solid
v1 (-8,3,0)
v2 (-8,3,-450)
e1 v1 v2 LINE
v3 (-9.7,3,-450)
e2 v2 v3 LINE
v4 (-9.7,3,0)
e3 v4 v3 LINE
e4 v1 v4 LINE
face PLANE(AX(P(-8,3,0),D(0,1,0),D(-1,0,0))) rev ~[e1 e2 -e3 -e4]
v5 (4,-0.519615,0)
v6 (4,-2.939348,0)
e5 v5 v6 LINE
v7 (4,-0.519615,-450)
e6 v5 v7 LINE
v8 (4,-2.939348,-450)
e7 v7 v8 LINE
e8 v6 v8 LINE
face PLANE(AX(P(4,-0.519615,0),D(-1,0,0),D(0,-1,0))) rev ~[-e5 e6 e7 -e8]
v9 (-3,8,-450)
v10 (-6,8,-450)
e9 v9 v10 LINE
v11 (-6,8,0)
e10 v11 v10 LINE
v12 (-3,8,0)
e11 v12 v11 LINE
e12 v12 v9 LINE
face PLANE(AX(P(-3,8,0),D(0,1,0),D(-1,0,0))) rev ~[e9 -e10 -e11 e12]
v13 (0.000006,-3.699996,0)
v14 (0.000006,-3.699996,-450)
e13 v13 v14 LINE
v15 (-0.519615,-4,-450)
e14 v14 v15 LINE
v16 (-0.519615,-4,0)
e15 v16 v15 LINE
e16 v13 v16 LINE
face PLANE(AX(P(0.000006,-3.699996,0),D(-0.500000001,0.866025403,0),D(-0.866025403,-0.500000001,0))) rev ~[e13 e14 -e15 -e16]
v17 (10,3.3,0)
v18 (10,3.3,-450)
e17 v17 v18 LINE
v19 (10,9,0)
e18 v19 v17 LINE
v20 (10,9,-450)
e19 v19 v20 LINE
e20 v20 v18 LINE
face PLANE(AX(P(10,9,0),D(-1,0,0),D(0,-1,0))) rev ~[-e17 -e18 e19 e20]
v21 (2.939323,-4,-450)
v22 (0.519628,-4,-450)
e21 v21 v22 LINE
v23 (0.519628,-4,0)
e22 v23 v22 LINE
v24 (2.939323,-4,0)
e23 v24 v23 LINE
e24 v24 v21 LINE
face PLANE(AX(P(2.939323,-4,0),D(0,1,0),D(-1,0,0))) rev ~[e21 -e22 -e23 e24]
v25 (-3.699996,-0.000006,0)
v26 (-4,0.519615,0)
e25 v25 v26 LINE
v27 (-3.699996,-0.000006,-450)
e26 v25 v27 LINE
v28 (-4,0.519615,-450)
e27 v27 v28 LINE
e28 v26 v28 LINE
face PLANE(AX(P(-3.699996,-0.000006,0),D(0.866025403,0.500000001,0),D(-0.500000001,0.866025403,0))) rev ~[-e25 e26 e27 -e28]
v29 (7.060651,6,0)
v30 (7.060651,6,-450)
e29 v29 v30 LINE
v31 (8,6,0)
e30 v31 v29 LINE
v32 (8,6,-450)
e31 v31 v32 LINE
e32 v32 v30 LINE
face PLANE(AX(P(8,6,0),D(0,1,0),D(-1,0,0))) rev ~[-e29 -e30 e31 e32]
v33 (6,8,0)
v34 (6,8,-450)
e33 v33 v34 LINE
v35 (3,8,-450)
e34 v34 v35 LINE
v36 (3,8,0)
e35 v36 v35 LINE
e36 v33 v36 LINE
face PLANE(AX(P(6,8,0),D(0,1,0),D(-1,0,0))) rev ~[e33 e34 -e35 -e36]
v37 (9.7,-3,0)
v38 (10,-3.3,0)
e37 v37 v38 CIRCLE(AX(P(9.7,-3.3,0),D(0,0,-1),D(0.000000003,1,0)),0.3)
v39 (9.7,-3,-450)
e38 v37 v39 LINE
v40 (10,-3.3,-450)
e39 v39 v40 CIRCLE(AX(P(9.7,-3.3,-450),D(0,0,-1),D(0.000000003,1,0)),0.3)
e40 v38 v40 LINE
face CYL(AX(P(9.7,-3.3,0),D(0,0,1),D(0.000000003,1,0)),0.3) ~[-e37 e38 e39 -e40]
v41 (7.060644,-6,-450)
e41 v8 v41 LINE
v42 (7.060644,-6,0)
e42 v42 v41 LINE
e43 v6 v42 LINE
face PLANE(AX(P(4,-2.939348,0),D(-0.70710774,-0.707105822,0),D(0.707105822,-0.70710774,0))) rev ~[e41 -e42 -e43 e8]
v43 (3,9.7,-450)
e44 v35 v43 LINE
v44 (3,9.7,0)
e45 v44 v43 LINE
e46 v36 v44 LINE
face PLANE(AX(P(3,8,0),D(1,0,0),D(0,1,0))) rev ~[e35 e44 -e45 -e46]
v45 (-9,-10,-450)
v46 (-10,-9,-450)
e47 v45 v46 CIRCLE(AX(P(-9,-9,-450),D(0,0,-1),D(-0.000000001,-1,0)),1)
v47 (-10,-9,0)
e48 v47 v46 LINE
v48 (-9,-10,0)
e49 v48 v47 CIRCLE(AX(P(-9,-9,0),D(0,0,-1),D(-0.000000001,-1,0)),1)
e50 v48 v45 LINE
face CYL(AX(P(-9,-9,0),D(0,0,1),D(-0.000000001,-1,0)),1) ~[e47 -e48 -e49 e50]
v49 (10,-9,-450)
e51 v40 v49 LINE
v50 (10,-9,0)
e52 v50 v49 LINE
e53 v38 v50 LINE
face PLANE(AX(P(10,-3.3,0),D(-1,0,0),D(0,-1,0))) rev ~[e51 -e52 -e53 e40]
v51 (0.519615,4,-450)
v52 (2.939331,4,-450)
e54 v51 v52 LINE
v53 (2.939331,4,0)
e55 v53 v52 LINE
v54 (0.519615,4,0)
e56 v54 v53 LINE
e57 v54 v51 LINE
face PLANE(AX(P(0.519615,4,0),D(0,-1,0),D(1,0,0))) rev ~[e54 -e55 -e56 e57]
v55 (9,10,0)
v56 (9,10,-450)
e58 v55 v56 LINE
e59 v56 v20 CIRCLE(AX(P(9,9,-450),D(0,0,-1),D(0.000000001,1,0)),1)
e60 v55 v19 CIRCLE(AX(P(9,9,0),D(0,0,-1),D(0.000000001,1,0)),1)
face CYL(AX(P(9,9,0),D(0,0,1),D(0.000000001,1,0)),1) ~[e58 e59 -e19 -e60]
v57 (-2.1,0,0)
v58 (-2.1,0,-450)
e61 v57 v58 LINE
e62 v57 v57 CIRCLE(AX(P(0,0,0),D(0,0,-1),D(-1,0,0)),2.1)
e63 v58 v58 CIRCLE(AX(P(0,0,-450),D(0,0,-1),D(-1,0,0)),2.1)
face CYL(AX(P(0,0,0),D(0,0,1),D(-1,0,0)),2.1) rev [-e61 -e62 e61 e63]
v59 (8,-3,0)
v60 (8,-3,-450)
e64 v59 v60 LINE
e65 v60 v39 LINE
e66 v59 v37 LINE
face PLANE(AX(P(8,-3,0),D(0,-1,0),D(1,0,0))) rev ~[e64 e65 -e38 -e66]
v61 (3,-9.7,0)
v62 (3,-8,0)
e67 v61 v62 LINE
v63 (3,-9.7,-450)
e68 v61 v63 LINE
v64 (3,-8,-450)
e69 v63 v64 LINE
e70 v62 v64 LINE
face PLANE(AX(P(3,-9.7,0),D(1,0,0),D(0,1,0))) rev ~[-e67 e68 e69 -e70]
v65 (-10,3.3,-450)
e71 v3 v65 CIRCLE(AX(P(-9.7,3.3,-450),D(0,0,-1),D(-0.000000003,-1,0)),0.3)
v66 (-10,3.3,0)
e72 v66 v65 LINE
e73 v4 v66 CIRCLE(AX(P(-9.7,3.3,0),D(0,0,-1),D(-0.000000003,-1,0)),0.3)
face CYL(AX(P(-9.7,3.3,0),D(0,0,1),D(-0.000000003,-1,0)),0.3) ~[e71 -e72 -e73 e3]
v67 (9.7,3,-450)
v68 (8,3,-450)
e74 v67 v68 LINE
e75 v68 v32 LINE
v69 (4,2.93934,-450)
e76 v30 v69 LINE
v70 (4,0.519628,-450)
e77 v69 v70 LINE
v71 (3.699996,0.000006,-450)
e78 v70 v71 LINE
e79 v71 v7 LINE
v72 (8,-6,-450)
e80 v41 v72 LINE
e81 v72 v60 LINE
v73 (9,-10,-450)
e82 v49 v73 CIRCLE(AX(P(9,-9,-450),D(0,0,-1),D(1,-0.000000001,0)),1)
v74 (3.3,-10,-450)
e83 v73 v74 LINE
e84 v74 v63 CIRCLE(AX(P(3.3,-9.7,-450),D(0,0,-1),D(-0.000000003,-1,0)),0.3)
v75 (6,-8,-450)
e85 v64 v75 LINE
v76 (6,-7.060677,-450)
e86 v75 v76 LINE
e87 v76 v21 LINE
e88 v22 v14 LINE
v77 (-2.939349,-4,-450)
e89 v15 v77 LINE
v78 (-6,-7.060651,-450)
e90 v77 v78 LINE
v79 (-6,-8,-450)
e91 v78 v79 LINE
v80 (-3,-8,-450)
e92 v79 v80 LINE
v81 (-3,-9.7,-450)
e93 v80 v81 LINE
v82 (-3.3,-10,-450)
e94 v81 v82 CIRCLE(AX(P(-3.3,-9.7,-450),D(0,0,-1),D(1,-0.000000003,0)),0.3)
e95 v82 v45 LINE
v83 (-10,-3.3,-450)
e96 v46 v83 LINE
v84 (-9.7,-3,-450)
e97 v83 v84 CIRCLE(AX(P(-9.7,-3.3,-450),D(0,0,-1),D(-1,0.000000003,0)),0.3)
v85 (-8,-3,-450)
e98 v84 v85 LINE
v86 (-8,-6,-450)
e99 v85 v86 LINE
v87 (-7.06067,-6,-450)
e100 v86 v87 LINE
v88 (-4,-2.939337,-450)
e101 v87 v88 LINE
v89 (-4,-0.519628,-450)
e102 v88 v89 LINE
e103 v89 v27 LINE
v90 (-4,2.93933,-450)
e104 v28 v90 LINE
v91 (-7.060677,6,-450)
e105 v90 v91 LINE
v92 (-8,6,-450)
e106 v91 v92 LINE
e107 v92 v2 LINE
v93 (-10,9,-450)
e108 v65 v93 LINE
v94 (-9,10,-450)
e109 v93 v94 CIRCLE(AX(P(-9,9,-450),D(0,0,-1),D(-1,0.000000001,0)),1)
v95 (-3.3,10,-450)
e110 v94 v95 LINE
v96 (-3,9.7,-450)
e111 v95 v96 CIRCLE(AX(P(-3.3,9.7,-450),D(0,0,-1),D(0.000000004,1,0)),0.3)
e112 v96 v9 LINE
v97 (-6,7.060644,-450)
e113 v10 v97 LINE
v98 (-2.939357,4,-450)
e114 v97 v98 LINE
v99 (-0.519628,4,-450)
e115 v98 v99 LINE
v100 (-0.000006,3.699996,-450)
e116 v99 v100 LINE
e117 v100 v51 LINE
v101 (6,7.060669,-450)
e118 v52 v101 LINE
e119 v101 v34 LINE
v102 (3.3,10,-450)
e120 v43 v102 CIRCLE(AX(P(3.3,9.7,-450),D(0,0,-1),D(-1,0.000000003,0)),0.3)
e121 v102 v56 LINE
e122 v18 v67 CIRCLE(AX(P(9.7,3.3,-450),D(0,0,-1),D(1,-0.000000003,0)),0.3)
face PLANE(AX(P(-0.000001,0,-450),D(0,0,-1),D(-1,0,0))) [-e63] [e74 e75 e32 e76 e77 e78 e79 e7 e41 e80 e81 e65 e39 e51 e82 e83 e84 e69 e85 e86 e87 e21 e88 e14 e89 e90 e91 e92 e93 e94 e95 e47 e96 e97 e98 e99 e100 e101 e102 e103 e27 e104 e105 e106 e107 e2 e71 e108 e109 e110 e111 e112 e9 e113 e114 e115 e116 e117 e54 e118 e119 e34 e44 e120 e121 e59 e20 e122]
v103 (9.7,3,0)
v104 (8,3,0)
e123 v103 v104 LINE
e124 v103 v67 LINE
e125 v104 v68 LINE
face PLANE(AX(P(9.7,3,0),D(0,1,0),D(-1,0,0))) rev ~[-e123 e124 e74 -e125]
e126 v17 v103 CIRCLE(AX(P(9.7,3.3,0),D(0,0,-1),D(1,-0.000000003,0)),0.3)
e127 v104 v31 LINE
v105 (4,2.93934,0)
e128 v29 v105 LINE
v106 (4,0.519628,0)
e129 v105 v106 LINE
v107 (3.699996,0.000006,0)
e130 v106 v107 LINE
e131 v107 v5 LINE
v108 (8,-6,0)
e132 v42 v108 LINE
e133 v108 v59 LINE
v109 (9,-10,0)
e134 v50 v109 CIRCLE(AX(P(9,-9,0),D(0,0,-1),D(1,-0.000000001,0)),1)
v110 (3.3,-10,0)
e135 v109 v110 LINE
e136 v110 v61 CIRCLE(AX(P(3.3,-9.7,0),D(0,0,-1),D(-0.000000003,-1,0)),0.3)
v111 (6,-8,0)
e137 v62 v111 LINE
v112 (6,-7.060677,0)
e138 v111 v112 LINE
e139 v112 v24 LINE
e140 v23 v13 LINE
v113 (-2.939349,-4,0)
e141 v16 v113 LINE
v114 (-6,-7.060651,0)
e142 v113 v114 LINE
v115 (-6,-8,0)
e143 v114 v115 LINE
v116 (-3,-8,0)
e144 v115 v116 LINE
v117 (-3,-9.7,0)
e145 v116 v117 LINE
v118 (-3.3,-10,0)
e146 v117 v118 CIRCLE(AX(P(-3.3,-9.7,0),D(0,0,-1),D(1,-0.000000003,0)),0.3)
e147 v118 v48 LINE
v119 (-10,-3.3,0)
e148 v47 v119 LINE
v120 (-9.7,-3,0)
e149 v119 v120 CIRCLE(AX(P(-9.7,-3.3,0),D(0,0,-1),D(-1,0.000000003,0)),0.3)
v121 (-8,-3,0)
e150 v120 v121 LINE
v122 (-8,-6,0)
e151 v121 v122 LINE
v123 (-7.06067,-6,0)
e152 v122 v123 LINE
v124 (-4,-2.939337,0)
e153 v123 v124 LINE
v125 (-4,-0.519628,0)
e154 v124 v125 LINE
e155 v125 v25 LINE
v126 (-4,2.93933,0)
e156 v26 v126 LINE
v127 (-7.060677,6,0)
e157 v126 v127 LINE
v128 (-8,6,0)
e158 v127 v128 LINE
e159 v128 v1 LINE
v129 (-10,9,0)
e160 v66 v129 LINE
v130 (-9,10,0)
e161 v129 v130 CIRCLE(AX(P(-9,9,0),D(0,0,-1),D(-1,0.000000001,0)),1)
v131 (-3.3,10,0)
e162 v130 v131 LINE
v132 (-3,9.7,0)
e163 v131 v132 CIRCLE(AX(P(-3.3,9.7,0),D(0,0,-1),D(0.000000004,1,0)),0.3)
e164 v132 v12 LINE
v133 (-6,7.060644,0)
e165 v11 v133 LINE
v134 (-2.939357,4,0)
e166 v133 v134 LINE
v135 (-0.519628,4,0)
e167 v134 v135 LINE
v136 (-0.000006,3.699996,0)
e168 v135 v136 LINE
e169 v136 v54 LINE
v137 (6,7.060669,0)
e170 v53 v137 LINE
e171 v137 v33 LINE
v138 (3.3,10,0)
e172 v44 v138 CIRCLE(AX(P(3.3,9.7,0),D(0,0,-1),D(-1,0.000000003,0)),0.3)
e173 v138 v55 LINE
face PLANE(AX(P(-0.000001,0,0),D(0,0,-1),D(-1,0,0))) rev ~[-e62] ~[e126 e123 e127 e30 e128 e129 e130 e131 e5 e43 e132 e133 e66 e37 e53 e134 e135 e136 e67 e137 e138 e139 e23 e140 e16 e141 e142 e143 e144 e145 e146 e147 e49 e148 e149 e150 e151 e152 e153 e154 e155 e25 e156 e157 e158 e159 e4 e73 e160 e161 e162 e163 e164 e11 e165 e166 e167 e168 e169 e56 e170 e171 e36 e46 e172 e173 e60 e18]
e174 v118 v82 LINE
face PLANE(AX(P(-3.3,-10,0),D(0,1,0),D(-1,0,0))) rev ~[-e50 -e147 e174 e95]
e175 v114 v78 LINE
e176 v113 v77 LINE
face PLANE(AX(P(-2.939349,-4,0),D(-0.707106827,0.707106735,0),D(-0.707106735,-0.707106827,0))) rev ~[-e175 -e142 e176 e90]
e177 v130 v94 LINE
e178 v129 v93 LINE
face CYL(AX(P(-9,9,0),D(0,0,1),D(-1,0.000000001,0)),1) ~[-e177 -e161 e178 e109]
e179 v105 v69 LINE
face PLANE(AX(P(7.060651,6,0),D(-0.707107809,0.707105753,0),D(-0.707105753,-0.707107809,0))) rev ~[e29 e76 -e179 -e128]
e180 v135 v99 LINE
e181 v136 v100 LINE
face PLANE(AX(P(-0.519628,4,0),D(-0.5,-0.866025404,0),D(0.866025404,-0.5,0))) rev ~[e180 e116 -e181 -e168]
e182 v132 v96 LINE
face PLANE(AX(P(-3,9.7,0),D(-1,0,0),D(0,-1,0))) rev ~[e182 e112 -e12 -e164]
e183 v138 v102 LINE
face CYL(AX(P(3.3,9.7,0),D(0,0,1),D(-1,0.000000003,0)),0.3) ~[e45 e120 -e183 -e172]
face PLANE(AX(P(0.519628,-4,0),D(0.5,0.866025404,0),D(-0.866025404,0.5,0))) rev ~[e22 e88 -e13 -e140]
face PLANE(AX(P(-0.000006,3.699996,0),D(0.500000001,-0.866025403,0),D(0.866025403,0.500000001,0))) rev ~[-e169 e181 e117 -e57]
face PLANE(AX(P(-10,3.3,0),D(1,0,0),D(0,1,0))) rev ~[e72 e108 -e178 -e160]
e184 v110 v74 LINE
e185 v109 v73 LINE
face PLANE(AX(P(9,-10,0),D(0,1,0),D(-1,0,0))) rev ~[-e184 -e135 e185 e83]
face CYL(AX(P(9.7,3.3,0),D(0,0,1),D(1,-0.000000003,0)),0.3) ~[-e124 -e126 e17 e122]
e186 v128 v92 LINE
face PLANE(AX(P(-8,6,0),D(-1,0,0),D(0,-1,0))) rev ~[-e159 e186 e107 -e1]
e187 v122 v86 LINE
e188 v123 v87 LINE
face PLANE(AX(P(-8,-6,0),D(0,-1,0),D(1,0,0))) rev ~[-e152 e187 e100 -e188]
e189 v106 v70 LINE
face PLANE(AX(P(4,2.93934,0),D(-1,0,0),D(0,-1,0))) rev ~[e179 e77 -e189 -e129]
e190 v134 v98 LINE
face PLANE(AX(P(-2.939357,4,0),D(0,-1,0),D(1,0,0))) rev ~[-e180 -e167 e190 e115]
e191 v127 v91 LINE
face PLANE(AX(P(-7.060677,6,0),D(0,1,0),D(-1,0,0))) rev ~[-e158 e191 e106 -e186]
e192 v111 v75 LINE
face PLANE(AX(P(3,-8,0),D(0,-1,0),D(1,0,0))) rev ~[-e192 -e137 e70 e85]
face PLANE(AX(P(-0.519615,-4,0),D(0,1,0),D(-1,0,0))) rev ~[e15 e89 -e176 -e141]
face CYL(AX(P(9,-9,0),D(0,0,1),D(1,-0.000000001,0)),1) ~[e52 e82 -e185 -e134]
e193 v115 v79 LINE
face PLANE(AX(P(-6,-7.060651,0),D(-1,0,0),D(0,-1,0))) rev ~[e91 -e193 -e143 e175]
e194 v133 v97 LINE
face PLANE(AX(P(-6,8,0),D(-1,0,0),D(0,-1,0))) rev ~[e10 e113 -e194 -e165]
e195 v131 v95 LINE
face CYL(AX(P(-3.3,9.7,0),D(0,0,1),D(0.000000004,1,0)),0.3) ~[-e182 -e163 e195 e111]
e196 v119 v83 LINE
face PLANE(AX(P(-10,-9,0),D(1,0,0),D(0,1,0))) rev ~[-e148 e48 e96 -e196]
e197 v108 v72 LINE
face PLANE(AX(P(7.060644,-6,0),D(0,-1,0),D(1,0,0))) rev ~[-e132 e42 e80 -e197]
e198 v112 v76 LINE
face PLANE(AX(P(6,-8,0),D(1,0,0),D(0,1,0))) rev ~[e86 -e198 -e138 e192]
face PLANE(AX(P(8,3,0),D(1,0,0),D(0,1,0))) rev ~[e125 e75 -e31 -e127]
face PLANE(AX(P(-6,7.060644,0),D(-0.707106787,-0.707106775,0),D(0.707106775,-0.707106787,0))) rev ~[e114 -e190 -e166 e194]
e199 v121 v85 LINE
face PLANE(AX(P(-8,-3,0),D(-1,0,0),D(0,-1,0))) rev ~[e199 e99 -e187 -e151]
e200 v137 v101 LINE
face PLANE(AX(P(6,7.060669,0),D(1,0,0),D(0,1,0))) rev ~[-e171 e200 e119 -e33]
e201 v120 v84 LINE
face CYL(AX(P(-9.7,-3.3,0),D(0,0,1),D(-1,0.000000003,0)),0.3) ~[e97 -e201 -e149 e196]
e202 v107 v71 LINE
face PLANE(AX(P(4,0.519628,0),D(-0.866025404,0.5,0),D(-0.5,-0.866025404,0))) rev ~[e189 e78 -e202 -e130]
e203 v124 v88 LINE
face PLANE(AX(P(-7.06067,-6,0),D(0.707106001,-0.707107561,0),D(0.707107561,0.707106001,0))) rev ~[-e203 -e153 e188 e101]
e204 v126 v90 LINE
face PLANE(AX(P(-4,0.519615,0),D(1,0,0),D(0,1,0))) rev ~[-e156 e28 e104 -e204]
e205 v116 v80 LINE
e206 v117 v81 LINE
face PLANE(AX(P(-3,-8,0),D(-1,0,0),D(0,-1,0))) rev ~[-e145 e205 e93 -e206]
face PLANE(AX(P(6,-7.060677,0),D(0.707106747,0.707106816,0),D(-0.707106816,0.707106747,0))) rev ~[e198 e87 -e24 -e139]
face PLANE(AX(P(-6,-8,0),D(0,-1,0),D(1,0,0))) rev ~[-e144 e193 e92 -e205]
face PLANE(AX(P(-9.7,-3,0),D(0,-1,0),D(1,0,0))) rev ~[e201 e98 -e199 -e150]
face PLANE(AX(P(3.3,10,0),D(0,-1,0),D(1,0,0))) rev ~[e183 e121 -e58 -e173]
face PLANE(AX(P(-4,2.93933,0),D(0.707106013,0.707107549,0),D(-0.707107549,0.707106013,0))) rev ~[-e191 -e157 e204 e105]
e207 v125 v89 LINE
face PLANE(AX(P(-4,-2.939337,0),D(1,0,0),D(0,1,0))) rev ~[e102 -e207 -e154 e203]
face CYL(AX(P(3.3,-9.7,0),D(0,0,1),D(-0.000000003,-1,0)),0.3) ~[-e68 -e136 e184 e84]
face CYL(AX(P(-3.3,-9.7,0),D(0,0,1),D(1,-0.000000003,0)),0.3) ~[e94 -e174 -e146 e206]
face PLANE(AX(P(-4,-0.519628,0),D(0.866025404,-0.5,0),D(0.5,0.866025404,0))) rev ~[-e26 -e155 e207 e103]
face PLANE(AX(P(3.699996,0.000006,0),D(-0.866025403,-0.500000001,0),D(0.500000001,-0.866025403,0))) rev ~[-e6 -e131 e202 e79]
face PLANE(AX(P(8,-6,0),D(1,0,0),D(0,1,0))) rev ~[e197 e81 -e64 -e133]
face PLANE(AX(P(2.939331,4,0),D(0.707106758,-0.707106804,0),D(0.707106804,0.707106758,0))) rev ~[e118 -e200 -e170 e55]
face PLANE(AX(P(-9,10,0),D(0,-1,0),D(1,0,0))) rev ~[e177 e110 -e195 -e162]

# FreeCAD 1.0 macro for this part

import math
import FreeCAD as App
import Part
import Sketcher

doc = App.newDocument("Part")
body = doc.addObject("PartDesign::Body", "Body")

sketch1 = doc.addObject("Sketcher::SketchObject", "Sketch")
body.addObject(sketch1)
sketch1.AttachmentSupport = (doc.XY_Plane, [""])
sketch1.MapMode = "FlatFace"
sketch1.addGeometry(Part.LineSegment(App.Vector(-10, 3.3, 0), App.Vector(-10, 9, 0)), False)
sketch1.addGeometry(Part.ArcOfCircle(Part.Circle(App.Vector(-9, 9, 0), App.Vector(0, 0, 1), 1), math.radians(90), math.radians(180)), False)
sketch1.addGeometry(Part.LineSegment(App.Vector(-9, 10, 0), App.Vector(-3.3, 10, 0)), False)
sketch1.addGeometry(Part.ArcOfCircle(Part.Circle(App.Vector(-3.3, 9.7, 0), App.Vector(0, 0, 1), 0.3), math.radians(0), math.radians(90)), False)
sketch1.addGeometry(Part.LineSegment(App.Vector(-3, 9.7, 0), App.Vector(-3, 8, 0)), False)
sketch1.addGeometry(Part.LineSegment(App.Vector(-3, 8, 0), App.Vector(-6, 8, 0)), False)
sketch1.addGeometry(Part.LineSegment(App.Vector(-6, 8, 0), App.Vector(-6, 7.060644, 0)), False)
sketch1.addGeometry(Part.LineSegment(App.Vector(-6, 7.060644, 0), App.Vector(-2.939357, 4, 0)), False)
sketch1.addGeometry(Part.LineSegment(App.Vector(-2.939357, 4, 0), App.Vector(-0.519628, 4, 0)), False)
sketch1.addGeometry(Part.LineSegment(App.Vector(-0.519628, 4, 0), App.Vector(-0.000006, 3.699996, 0)), False)
sketch1.addGeometry(Part.LineSegment(App.Vector(-0.000006, 3.699996, 0), App.Vector(0.519615, 4, 0)), False)
sketch1.addGeometry(Part.LineSegment(App.Vector(0.519615, 4, 0), App.Vector(2.939331, 4, 0)), False)
sketch1.addGeometry(Part.LineSegment(App.Vector(2.939331, 4, 0), App.Vector(6, 7.060669, 0)), False)
sketch1.addGeometry(Part.LineSegment(App.Vector(6, 7.060669, 0), App.Vector(6, 8, 0)), False)
sketch1.addGeometry(Part.LineSegment(App.Vector(6, 8, 0), App.Vector(3, 8, 0)), False)
sketch1.addGeometry(Part.LineSegment(App.Vector(3, 8, 0), App.Vector(3, 9.7, 0)), False)
sketch1.addGeometry(Part.ArcOfCircle(Part.Circle(App.Vector(3.3, 9.7, 0), App.Vector(0, 0, 1), 0.3), math.radians(90), math.radians(180)), False)
sketch1.addGeometry(Part.LineSegment(App.Vector(3.3, 10, 0), App.Vector(9, 10, 0)), False)
sketch1.addGeometry(Part.ArcOfCircle(Part.Circle(App.Vector(9, 9, 0), App.Vector(0, 0, 1), 1), math.radians(0), math.radians(90)), False)
sketch1.addGeometry(Part.LineSegment(App.Vector(10, 9, 0), App.Vector(10, 3.3, 0)), False)
sketch1.addGeometry(Part.ArcOfCircle(Part.Circle(App.Vector(9.7, 3.3, 0), App.Vector(0, 0, 1), 0.3), math.radians(-90), math.radians(0)), False)
sketch1.addGeometry(Part.LineSegment(App.Vector(9.7, 3, 0), App.Vector(8, 3, 0)), False)
sketch1.addGeometry(Part.LineSegment(App.Vector(8, 3, 0), App.Vector(8, 6, 0)), False)
sketch1.addGeometry(Part.LineSegment(App.Vector(8, 6, 0), App.Vector(7.060651, 6, 0)), False)
sketch1.addGeometry(Part.LineSegment(App.Vector(7.060651, 6, 0), App.Vector(4, 2.93934, 0)), False)
sketch1.addGeometry(Part.LineSegment(App.Vector(4, 2.93934, 0), App.Vector(4, 0.519628, 0)), False)
sketch1.addGeometry(Part.LineSegment(App.Vector(4, 0.519628, 0), App.Vector(3.699996, 0.000006, 0)), False)
sketch1.addGeometry(Part.LineSegment(App.Vector(3.699996, 0.000006, 0), App.Vector(4, -0.519615, 0)), False)
sketch1.addGeometry(Part.LineSegment(App.Vector(4, -0.519615, 0), App.Vector(4, -2.939348, 0)), False)
sketch1.addGeometry(Part.LineSegment(App.Vector(4, -2.939348, 0), App.Vector(7.060644, -6, 0)), False)
sketch1.addGeometry(Part.LineSegment(App.Vector(7.060644, -6, 0), App.Vector(8, -6, 0)), False)
sketch1.addGeometry(Part.LineSegment(App.Vector(8, -6, 0), App.Vector(8, -3, 0)), False)
sketch1.addGeometry(Part.LineSegment(App.Vector(8, -3, 0), App.Vector(9.7, -3, 0)), False)
sketch1.addGeometry(Part.ArcOfCircle(Part.Circle(App.Vector(9.7, -3.3, 0), App.Vector(0, 0, 1), 0.3), math.radians(0), math.radians(90)), False)
sketch1.addGeometry(Part.LineSegment(App.Vector(10, -3.3, 0), App.Vector(10, -9, 0)), False)
sketch1.addGeometry(Part.ArcOfCircle(Part.Circle(App.Vector(9, -9, 0), App.Vector(0, 0, 1), 1), math.radians(-90), math.radians(0)), False)
sketch1.addGeometry(Part.LineSegment(App.Vector(9, -10, 0), App.Vector(3.3, -10, 0)), False)
sketch1.addGeometry(Part.ArcOfCircle(Part.Circle(App.Vector(3.3, -9.7, 0), App.Vector(0, 0, 1), 0.3), math.radians(-180), math.radians(-90)), False)
sketch1.addGeometry(Part.LineSegment(App.Vector(3, -9.7, 0), App.Vector(3, -8, 0)), False)
sketch1.addGeometry(Part.LineSegment(App.Vector(3, -8, 0), App.Vector(6, -8, 0)), False)
sketch1.addGeometry(Part.LineSegment(App.Vector(6, -8, 0), App.Vector(6, -7.060677, 0)), False)
sketch1.addGeometry(Part.LineSegment(App.Vector(6, -7.060677, 0), App.Vector(2.939323, -4, 0)), False)
sketch1.addGeometry(Part.LineSegment(App.Vector(2.939323, -4, 0), App.Vector(0.519628, -4, 0)), False)
sketch1.addGeometry(Part.LineSegment(App.Vector(0.519628, -4, 0), App.Vector(0.000006, -3.699996, 0)), False)
sketch1.addGeometry(Part.LineSegment(App.Vector(0.000006, -3.699996, 0), App.Vector(-0.519615, -4, 0)), False)
sketch1.addGeometry(Part.LineSegment(App.Vector(-0.519615, -4, 0), App.Vector(-2.939349, -4, 0)), False)
sketch1.addGeometry(Part.LineSegment(App.Vector(-2.939349, -4, 0), App.Vector(-6, -7.060651, 0)), False)
sketch1.addGeometry(Part.LineSegment(App.Vector(-6, -7.060651, 0), App.Vector(-6, -8, 0)), False)
sketch1.addGeometry(Part.LineSegment(App.Vector(-6, -8, 0), App.Vector(-3, -8, 0)), False)
sketch1.addGeometry(Part.LineSegment(App.Vector(-3, -8, 0), App.Vector(-3, -9.7, 0)), False)
sketch1.addGeometry(Part.ArcOfCircle(Part.Circle(App.Vector(-3.3, -9.7, 0), App.Vector(0, 0, 1), 0.3), math.radians(-90), math.radians(0)), False)
sketch1.addGeometry(Part.LineSegment(App.Vector(-3.3, -10, 0), App.Vector(-9, -10, 0)), False)
sketch1.addGeometry(Part.ArcOfCircle(Part.Circle(App.Vector(-9, -9, 0), App.Vector(0, 0, 1), 1), math.radians(-180), math.radians(-90)), False)
sketch1.addGeometry(Part.LineSegment(App.Vector(-10, -9, 0), App.Vector(-10, -3.3, 0)), False)
sketch1.addGeometry(Part.ArcOfCircle(Part.Circle(App.Vector(-9.7, -3.3, 0), App.Vector(0, 0, 1), 0.3), math.radians(90), math.radians(180)), False)
sketch1.addGeometry(Part.LineSegment(App.Vector(-9.7, -3, 0), App.Vector(-8, -3, 0)), False)
sketch1.addGeometry(Part.LineSegment(App.Vector(-8, -3, 0), App.Vector(-8, -6, 0)), False)
sketch1.addGeometry(Part.LineSegment(App.Vector(-8, -6, 0), App.Vector(-7.06067, -6, 0)), False)
sketch1.addGeometry(Part.LineSegment(App.Vector(-7.06067, -6, 0), App.Vector(-4, -2.939337, 0)), False)
sketch1.addGeometry(Part.LineSegment(App.Vector(-4, -2.939337, 0), App.Vector(-4, -0.519628, 0)), False)
sketch1.addGeometry(Part.LineSegment(App.Vector(-4, -0.519628, 0), App.Vector(-3.699996, -0.000006, 0)), False)
sketch1.addGeometry(Part.LineSegment(App.Vector(-3.699996, -0.000006, 0), App.Vector(-4, 0.519615, 0)), False)
sketch1.addGeometry(Part.LineSegment(App.Vector(-4, 0.519615, 0), App.Vector(-4, 2.93933, 0)), False)
sketch1.addGeometry(Part.LineSegment(App.Vector(-4, 2.93933, 0), App.Vector(-7.060677, 6, 0)), False)
sketch1.addGeometry(Part.LineSegment(App.Vector(-7.060677, 6, 0), App.Vector(-8, 6, 0)), False)
sketch1.addGeometry(Part.LineSegment(App.Vector(-8, 6, 0), App.Vector(-8, 3, 0)), False)
sketch1.addGeometry(Part.LineSegment(App.Vector(-8, 3, 0), App.Vector(-9.7, 3, 0)), False)
sketch1.addGeometry(Part.ArcOfCircle(Part.Circle(App.Vector(-9.7, 3.3, 0), App.Vector(0, 0, 1), 0.3), math.radians(-180), math.radians(-90)), False)
sketch1.addGeometry(Part.Circle(App.Vector(0, 0, 0), App.Vector(0, 0, 1), 2.1), False)
sketch1.addConstraint(Sketcher.Constraint("Coincident", 0, 2, 1, 2))
sketch1.addConstraint(Sketcher.Constraint("Coincident", 1, 1, 2, 1))
sketch1.addConstraint(Sketcher.Constraint("Coincident", 2, 2, 3, 2))
sketch1.addConstraint(Sketcher.Constraint("Coincident", 3, 1, 4, 1))
sketch1.addConstraint(Sketcher.Constraint("Coincident", 4, 2, 5, 1))
sketch1.addConstraint(Sketcher.Constraint("Coincident", 5, 2, 6, 1))
sketch1.addConstraint(Sketcher.Constraint("Coincident", 6, 2, 7, 1))
sketch1.addConstraint(Sketcher.Constraint("Coincident", 7, 2, 8, 1))
sketch1.addConstraint(Sketcher.Constraint("Coincident", 8, 2, 9, 1))
sketch1.addConstraint(Sketcher.Constraint("Coincident", 9, 2, 10, 1))
sketch1.addConstraint(Sketcher.Constraint("Coincident", 10, 2, 11, 1))
sketch1.addConstraint(Sketcher.Constraint("Coincident", 11, 2, 12, 1))
sketch1.addConstraint(Sketcher.Constraint("Coincident", 12, 2, 13, 1))
sketch1.addConstraint(Sketcher.Constraint("Coincident", 13, 2, 14, 1))
sketch1.addConstraint(Sketcher.Constraint("Coincident", 14, 2, 15, 1))
sketch1.addConstraint(Sketcher.Constraint("Coincident", 15, 2, 16, 2))
sketch1.addConstraint(Sketcher.Constraint("Coincident", 16, 1, 17, 1))
sketch1.addConstraint(Sketcher.Constraint("Coincident", 17, 2, 18, 2))
sketch1.addConstraint(Sketcher.Constraint("Coincident", 18, 1, 19, 1))
sketch1.addConstraint(Sketcher.Constraint("Coincident", 19, 2, 20, 2))
sketch1.addConstraint(Sketcher.Constraint("Coincident", 20, 1, 21, 1))
sketch1.addConstraint(Sketcher.Constraint("Coincident", 21, 2, 22, 1))
sketch1.addConstraint(Sketcher.Constraint("Coincident", 22, 2, 23, 1))
sketch1.addConstraint(Sketcher.Constraint("Coincident", 23, 2, 24, 1))
sketch1.addConstraint(Sketcher.Constraint("Coincident", 24, 2, 25, 1))
sketch1.addConstraint(Sketcher.Constraint("Coincident", 25, 2, 26, 1))
sketch1.addConstraint(Sketcher.Constraint("Coincident", 26, 2, 27, 1))
sketch1.addConstraint(Sketcher.Constraint("Coincident", 27, 2, 28, 1))
sketch1.addConstraint(Sketcher.Constraint("Coincident", 28, 2, 29, 1))
sketch1.addConstraint(Sketcher.Constraint("Coincident", 29, 2, 30, 1))
sketch1.addConstraint(Sketcher.Constraint("Coincident", 30, 2, 31, 1))
sketch1.addConstraint(Sketcher.Constraint("Coincident", 31, 2, 32, 1))
sketch1.addConstraint(Sketcher.Constraint("Coincident", 32, 2, 33, 2))
sketch1.addConstraint(Sketcher.Constraint("Coincident", 33, 1, 34, 1))
sketch1.addConstraint(Sketcher.Constraint("Coincident", 34, 2, 35, 2))
sketch1.addConstraint(Sketcher.Constraint("Coincident", 35, 1, 36, 1))
sketch1.addConstraint(Sketcher.Constraint("Coincident", 36, 2, 37, 2))
sketch1.addConstraint(Sketcher.Constraint("Coincident", 37, 1, 38, 1))
sketch1.addConstraint(Sketcher.Constraint("Coincident", 38, 2, 39, 1))
sketch1.addConstraint(Sketcher.Constraint("Coincident", 39, 2, 40, 1))
sketch1.addConstraint(Sketcher.Constraint("Coincident", 40, 2, 41, 1))
sketch1.addConstraint(Sketcher.Constraint("Coincident", 41, 2, 42, 1))
sketch1.addConstraint(Sketcher.Constraint("Coincident", 42, 2, 43, 1))
sketch1.addConstraint(Sketcher.Constraint("Coincident", 43, 2, 44, 1))
sketch1.addConstraint(Sketcher.Constraint("Coincident", 44, 2, 45, 1))
sketch1.addConstraint(Sketcher.Constraint("Coincident", 45, 2, 46, 1))
sketch1.addConstraint(Sketcher.Constraint("Coincident", 46, 2, 47, 1))
sketch1.addConstraint(Sketcher.Constraint("Coincident", 47, 2, 48, 1))
sketch1.addConstraint(Sketcher.Constraint("Coincident", 48, 2, 49, 1))
sketch1.addConstraint(Sketcher.Constraint("Coincident", 49, 2, 50, 2))
sketch1.addConstraint(Sketcher.Constraint("Coincident", 50, 1, 51, 1))
sketch1.addConstraint(Sketcher.Constraint("Coincident", 51, 2, 52, 2))
sketch1.addConstraint(Sketcher.Constraint("Coincident", 52, 1, 53, 1))
sketch1.addConstraint(Sketcher.Constraint("Coincident", 53, 2, 54, 2))
sketch1.addConstraint(Sketcher.Constraint("Coincident", 54, 1, 55, 1))
sketch1.addConstraint(Sketcher.Constraint("Coincident", 55, 2, 56, 1))
sketch1.addConstraint(Sketcher.Constraint("Coincident", 56, 2, 57, 1))
sketch1.addConstraint(Sketcher.Constraint("Coincident", 57, 2, 58, 1))
sketch1.addConstraint(Sketcher.Constraint("Coincident", 58, 2, 59, 1))
sketch1.addConstraint(Sketcher.Constraint("Coincident", 59, 2, 60, 1))
sketch1.addConstraint(Sketcher.Constraint("Coincident", 60, 2, 61, 1))
sketch1.addConstraint(Sketcher.Constraint("Coincident", 61, 2, 62, 1))
sketch1.addConstraint(Sketcher.Constraint("Coincident", 62, 2, 63, 1))
sketch1.addConstraint(Sketcher.Constraint("Coincident", 63, 2, 64, 1))
sketch1.addConstraint(Sketcher.Constraint("Coincident", 64, 2, 65, 1))
sketch1.addConstraint(Sketcher.Constraint("Coincident", 65, 2, 66, 1))
sketch1.addConstraint(Sketcher.Constraint("Coincident", 66, 2, 67, 2))
sketch1.addConstraint(Sketcher.Constraint("Coincident", 67, 1, 0, 1))
sketch1.addConstraint(Sketcher.Constraint("Vertical", 0))
sketch1.addConstraint(Sketcher.Constraint("Horizontal", 2))
sketch1.addConstraint(Sketcher.Constraint("Vertical", 4))
sketch1.addConstraint(Sketcher.Constraint("Horizontal", 5))
sketch1.addConstraint(Sketcher.Constraint("Vertical", 6))
sketch1.addConstraint(Sketcher.Constraint("Horizontal", 8))
sketch1.addConstraint(Sketcher.Constraint("Horizontal", 11))
sketch1.addConstraint(Sketcher.Constraint("Vertical", 13))
sketch1.addConstraint(Sketcher.Constraint("Horizontal", 14))
sketch1.addConstraint(Sketcher.Constraint("Vertical", 15))
sketch1.addConstraint(Sketcher.Constraint("Horizontal", 17))
sketch1.addConstraint(Sketcher.Constraint("Vertical", 19))
sketch1.addConstraint(Sketcher.Constraint("Horizontal", 21))
sketch1.addConstraint(Sketcher.Constraint("Vertical", 22))
sketch1.addConstraint(Sketcher.Constraint("Horizontal", 23))
sketch1.addConstraint(Sketcher.Constraint("Vertical", 25))
sketch1.addConstraint(Sketcher.Constraint("Vertical", 28))
sketch1.addConstraint(Sketcher.Constraint("Horizontal", 30))
sketch1.addConstraint(Sketcher.Constraint("Vertical", 31))
sketch1.addConstraint(Sketcher.Constraint("Horizontal", 32))
sketch1.addConstraint(Sketcher.Constraint("Vertical", 34))
sketch1.addConstraint(Sketcher.Constraint("Horizontal", 36))
sketch1.addConstraint(Sketcher.Constraint("Vertical", 38))
sketch1.addConstraint(Sketcher.Constraint("Horizontal", 39))
sketch1.addConstraint(Sketcher.Constraint("Vertical", 40))
sketch1.addConstraint(Sketcher.Constraint("Horizontal", 42))
sketch1.addConstraint(Sketcher.Constraint("Horizontal", 45))
sketch1.addConstraint(Sketcher.Constraint("Vertical", 47))
sketch1.addConstraint(Sketcher.Constraint("Horizontal", 48))
sketch1.addConstraint(Sketcher.Constraint("Vertical", 49))
sketch1.addConstraint(Sketcher.Constraint("Horizontal", 51))
sketch1.addConstraint(Sketcher.Constraint("Vertical", 53))
sketch1.addConstraint(Sketcher.Constraint("Horizontal", 55))
sketch1.addConstraint(Sketcher.Constraint("Vertical", 56))
sketch1.addConstraint(Sketcher.Constraint("Horizontal", 57))
sketch1.addConstraint(Sketcher.Constraint("Vertical", 59))
sketch1.addConstraint(Sketcher.Constraint("Vertical", 62))
sketch1.addConstraint(Sketcher.Constraint("Horizontal", 64))
sketch1.addConstraint(Sketcher.Constraint("Vertical", 65))
sketch1.addConstraint(Sketcher.Constraint("Horizontal", 66))
sketch1.addConstraint(Sketcher.Constraint("Coincident", 68, 3, -1, 1))
sketch1.addConstraint(Sketcher.Constraint("Radius", 1, 1.0))
sketch1.addConstraint(Sketcher.Constraint("Radius", 18, 1.0))
sketch1.addConstraint(Sketcher.Constraint("Radius", 35, 1.0))
sketch1.addConstraint(Sketcher.Constraint("Radius", 52, 1.0))
sketch1.addConstraint(Sketcher.Constraint("Diameter", 68, 4.2))
sketch1.addConstraint(Sketcher.Constraint("Radius", 3, 0.3))
sketch1.addConstraint(Sketcher.Constraint("Radius", 16, 0.3))
sketch1.addConstraint(Sketcher.Constraint("Radius", 20, 0.3))
sketch1.addConstraint(Sketcher.Constraint("Radius", 33, 0.3))
sketch1.addConstraint(Sketcher.Constraint("Radius", 37, 0.3))
sketch1.addConstraint(Sketcher.Constraint("Radius", 50, 0.3))
sketch1.addConstraint(Sketcher.Constraint("Radius", 54, 0.3))
sketch1.addConstraint(Sketcher.Constraint("Radius", 67, 0.3))
sketch1.addConstraint(Sketcher.Constraint("DistanceX", 5, 2, 5, 1, 3.0))
sketch1.addConstraint(Sketcher.Constraint("DistanceX", 14, 2, 14, 1, 3.0))
sketch1.addConstraint(Sketcher.Constraint("DistanceX", 39, 1, 39, 2, 3.0))
sketch1.addConstraint(Sketcher.Constraint("DistanceX", 48, 1, 48, 2, 3.0))
sketch1.addConstraint(Sketcher.Constraint("DistanceY", 22, 1, 22, 2, 3.0))
sketch1.addConstraint(Sketcher.Constraint("DistanceY", 31, 1, 31, 2, 3.0))
sketch1.addConstraint(Sketcher.Constraint("DistanceY", 56, 2, 56, 1, 3.0))
sketch1.addConstraint(Sketcher.Constraint("DistanceY", 65, 2, 65, 1, 3.0))
sketch1.addConstraint(Sketcher.Constraint("DistanceX", 2, 1, 2, 2, 5.7))
sketch1.addConstraint(Sketcher.Constraint("DistanceX", 17, 1, 17, 2, 5.7))
sketch1.addConstraint(Sketcher.Constraint("DistanceX", 21, 2, 21, 1, 1.7))
sketch1.addConstraint(Sketcher.Constraint("DistanceX", 32, 1, 32, 2, 1.7))
sketch1.addConstraint(Sketcher.Constraint("DistanceX", 36, 2, 36, 1, 5.7))
sketch1.addConstraint(Sketcher.Constraint("DistanceX", 51, 2, 51, 1, 5.7))
sketch1.addConstraint(Sketcher.Constraint("DistanceX", 55, 1, 55, 2, 1.7))
sketch1.addConstraint(Sketcher.Constraint("DistanceX", 66, 2, 66, 1, 1.7))
sketch1.addConstraint(Sketcher.Constraint("DistanceY", 0, 1, 0, 2, 5.7))
sketch1.addConstraint(Sketcher.Constraint("DistanceY", 4, 2, 4, 1, 1.7))
sketch1.addConstraint(Sketcher.Constraint("DistanceY", 15, 1, 15, 2, 1.7))
sketch1.addConstraint(Sketcher.Constraint("DistanceY", 19, 2, 19, 1, 5.7))
sketch1.addConstraint(Sketcher.Constraint("DistanceY", 34, 2, 34, 1, 5.7))
sketch1.addConstraint(Sketcher.Constraint("DistanceY", 38, 1, 38, 2, 1.7))
sketch1.addConstraint(Sketcher.Constraint("DistanceY", 49, 2, 49, 1, 1.7))
sketch1.addConstraint(Sketcher.Constraint("DistanceY", 53, 1, 53, 2, 5.7))
sketch1.addConstraint(Sketcher.Constraint("DistanceX", 1, 3, -1, 1, 9.0))
sketch1.addConstraint(Sketcher.Constraint("DistanceY", -1, 1, 1, 3, 9.0))
sketch1.addConstraint(Sketcher.Constraint("DistanceX", -1, 1, 18, 3, 9.0))
sketch1.addConstraint(Sketcher.Constraint("DistanceY", -1, 1, 18, 3, 9.0))
sketch1.addConstraint(Sketcher.Constraint("DistanceX", -1, 1, 35, 3, 9.0))
sketch1.addConstraint(Sketcher.Constraint("DistanceY", 35, 3, -1, 1, 9.0))
sketch1.addConstraint(Sketcher.Constraint("DistanceX", 52, 3, -1, 1, 9.0))
sketch1.addConstraint(Sketcher.Constraint("DistanceY", 52, 3, -1, 1, 9.0))
sketch1.addConstraint(Sketcher.Constraint("DistanceY", -1, 1, 0, 2, 9.0))
sketch1.addConstraint(Sketcher.Constraint("DistanceX", 1, 1, -1, 1, 9.0))
sketch1.addConstraint(Sketcher.Constraint("DistanceX", 3, 1, -1, 1, 3.0))
sketch1.addConstraint(Sketcher.Constraint("DistanceY", -1, 1, 4, 2, 8.0))
sketch1.addConstraint(Sketcher.Constraint("DistanceY", -1, 1, 7, 2, 4.0))
sketch1.addConstraint(Sketcher.Constraint("DistanceY", -1, 1, 10, 2, 4.0))
sketch1.addConstraint(Sketcher.Constraint("DistanceX", -1, 1, 12, 2, 6.0))
sketch1.addConstraint(Sketcher.Constraint("DistanceY", -1, 1, 13, 2, 8.0))
sketch1.addConstraint(Sketcher.Constraint("DistanceX", -1, 1, 17, 2, 9.0))
sketch1.addConstraint(Sketcher.Constraint("DistanceY", -1, 1, 18, 1, 9.0))
sketch1.addConstraint(Sketcher.Constraint("DistanceY", -1, 1, 20, 1, 3.0))
sketch1.addConstraint(Sketcher.Constraint("DistanceX", -1, 1, 21, 2, 8.0))
sketch1.addConstraint(Sketcher.Constraint("DistanceX", -1, 1, 24, 2, 4.0))
sketch1.addConstraint(Sketcher.Constraint("DistanceX", -1, 1, 27, 2, 4.0))
sketch1.addConstraint(Sketcher.Constraint("DistanceY", 29, 2, -1, 1, 6.0))
sketch1.addConstraint(Sketcher.Constraint("DistanceX", -1, 1, 30, 2, 8.0))
sketch1.addConstraint(Sketcher.Constraint("DistanceY", 34, 2, -1, 1, 9.0))
sketch1.addConstraint(Sketcher.Constraint("DistanceX", -1, 1, 35, 1, 9.0))
sketch1.addConstraint(Sketcher.Constraint("DistanceX", -1, 1, 37, 1, 3.0))
sketch1.addConstraint(Sketcher.Constraint("DistanceY", 38, 2, -1, 1, 8.0))
sketch1.addConstraint(Sketcher.Constraint("DistanceY", 41, 2, -1, 1, 4.0))
sketch1.addConstraint(Sketcher.Constraint("DistanceY", 44, 2, -1, 1, 4.0))
sketch1.addConstraint(Sketcher.Constraint("DistanceX", 46, 2, -1, 1, 6.0))
sketch1.addConstraint(Sketcher.Constraint("DistanceY", 47, 2, -1, 1, 8.0))
sketch1.addConstraint(Sketcher.Constraint("DistanceX", 51, 2, -1, 1, 9.0))
sketch1.addConstraint(Sketcher.Constraint("DistanceY", 52, 1, -1, 1, 9.0))
sketch1.addConstraint(Sketcher.Constraint("DistanceY", 54, 1, -1, 1, 3.0))
sketch1.addConstraint(Sketcher.Constraint("DistanceX", 55, 2, -1, 1, 8.0))
sketch1.addConstraint(Sketcher.Constraint("DistanceX", 58, 2, -1, 1, 4.0))
sketch1.addConstraint(Sketcher.Constraint("DistanceX", 61, 2, -1, 1, 4.0))
sketch1.addConstraint(Sketcher.Constraint("DistanceY", -1, 1, 63, 2, 6.0))
sketch1.addConstraint(Sketcher.Constraint("DistanceX", 64, 2, -1, 1, 8.0))
sketch1.addConstraint(Sketcher.Constraint("DistanceX", 8, 1, 8, 2, 2.419728))
sketch1.addConstraint(Sketcher.Constraint("DistanceX", 23, 2, 23, 1, 0.939349))
sketch1.addConstraint(Sketcher.Constraint("DistanceX", 57, 1, 57, 2, 0.93933))
sketch1.addConstraint(Sketcher.Constraint("DistanceY", 13, 1, 13, 2, 0.939331))
sketch1.addConstraint(Sketcher.Constraint("DistanceY", 25, 2, 25, 1, 2.419712))
sketch1.addConstraint(Sketcher.Constraint("DistanceY", 47, 2, 47, 1, 0.939349))
sketch1.addConstraint(Sketcher.Constraint("DistanceY", 59, 1, 59, 2, 2.419709))
sketch1.addConstraint(Sketcher.Constraint("Distance", 12, 4.32844))
sketch1.addConstraint(Sketcher.Constraint("Distance", 24, 4.32842))
sketch1.addConstraint(Sketcher.Constraint("Distance", 29, 4.328409))
sketch1.addConstraint(Sketcher.Constraint("Distance", 41, 4.328451))
sketch1.addConstraint(Sketcher.Constraint("DistanceX", 11, 1, 11, 2, 2.419716))
sketch1.addConstraint(Sketcher.Constraint("DistanceX", 30, 1, 30, 2, 0.939356))
sketch1.addConstraint(Sketcher.Constraint("DistanceX", 42, 2, 42, 1, 2.419695))
sketch1.addConstraint(Sketcher.Constraint("DistanceX", 45, 2, 45, 1, 2.419734))
sketch1.addConstraint(Sketcher.Constraint("DistanceX", 64, 2, 64, 1, 0.939323))
sketch1.addConstraint(Sketcher.Constraint("DistanceY", 6, 2, 6, 1, 0.939356))
sketch1.addConstraint(Sketcher.Constraint("DistanceY", 28, 2, 28, 1, 2.419733))
sketch1.addConstraint(Sketcher.Constraint("DistanceY", 40, 1, 40, 2, 0.939323))
sketch1.addConstraint(Sketcher.Constraint("DistanceY", 62, 1, 62, 2, 2.419714))
sketch1.addConstraint(Sketcher.Constraint("DistanceX", 8, 2, -1, 1, 0.519628))
sketch1.addConstraint(Sketcher.Constraint("DistanceX", 45, 2, -1, 1, 2.939349))
sketch1.addConstraint(Sketcher.Constraint("DistanceY", 59, 2, -1, 1, 0.519628))
sketch1.addConstraint(Sketcher.Constraint("DistanceY", -1, 1, 62, 2, 2.93933))
sketch1.addConstraint(Sketcher.Constraint("Distance", 9, 0.600007))
sketch1.addConstraint(Sketcher.Constraint("Distance", 10, 0.600007))
sketch1.addConstraint(Sketcher.Constraint("Distance", 26, 0.600007))
sketch1.addConstraint(Sketcher.Constraint("Distance", 27, 0.600007))
sketch1.addConstraint(Sketcher.Constraint("Distance", 43, 0.600007))
sketch1.addConstraint(Sketcher.Constraint("Distance", 44, 0.600007))
sketch1.addConstraint(Sketcher.Constraint("Distance", 60, 0.600007))
sketch1.addConstraint(Sketcher.Constraint("Distance", 61, 0.600007))
pad1 = doc.addObject("PartDesign::Pad", "Pad")
body.addObject(pad1)
pad1.Profile = sketch1
pad1.Length = 450
pad1.Reversed = True

doc.recompute()
